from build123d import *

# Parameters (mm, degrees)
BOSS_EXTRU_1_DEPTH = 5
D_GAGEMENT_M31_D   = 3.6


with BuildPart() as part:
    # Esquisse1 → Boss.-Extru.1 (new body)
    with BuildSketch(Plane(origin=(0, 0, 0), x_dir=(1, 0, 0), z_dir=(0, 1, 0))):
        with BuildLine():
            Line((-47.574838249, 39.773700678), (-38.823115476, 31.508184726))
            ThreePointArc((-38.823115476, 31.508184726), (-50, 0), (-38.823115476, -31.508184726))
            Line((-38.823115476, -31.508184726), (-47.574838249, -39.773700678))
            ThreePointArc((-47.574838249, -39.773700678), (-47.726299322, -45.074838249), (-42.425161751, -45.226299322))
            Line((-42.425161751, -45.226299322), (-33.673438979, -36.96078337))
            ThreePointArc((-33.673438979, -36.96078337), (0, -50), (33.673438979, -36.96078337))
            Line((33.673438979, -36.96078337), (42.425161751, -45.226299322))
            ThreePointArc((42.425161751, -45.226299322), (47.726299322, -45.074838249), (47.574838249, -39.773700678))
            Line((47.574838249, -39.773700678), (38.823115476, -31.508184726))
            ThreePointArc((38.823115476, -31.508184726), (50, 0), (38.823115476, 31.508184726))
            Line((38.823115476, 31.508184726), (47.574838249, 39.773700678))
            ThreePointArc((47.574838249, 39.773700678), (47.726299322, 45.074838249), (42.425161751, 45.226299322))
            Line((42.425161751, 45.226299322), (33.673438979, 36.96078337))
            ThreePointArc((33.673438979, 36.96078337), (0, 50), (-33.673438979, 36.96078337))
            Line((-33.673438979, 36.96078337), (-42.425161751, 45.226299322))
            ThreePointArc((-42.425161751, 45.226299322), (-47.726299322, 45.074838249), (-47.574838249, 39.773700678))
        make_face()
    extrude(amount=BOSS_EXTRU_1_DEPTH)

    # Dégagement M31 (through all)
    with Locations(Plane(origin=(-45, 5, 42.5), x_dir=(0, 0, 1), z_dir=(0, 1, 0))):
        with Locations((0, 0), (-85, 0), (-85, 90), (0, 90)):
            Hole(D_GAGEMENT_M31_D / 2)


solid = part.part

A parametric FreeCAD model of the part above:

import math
import FreeCAD as App
import Part
import Sketcher
Q = App.Units.Quantity

doc = App.newDocument("Part")
body = doc.addObject("PartDesign::Body", "Body")

sketch1 = doc.addObject("Sketcher::SketchObject", "Sketch")
body.addObject(sketch1)
sketch1.AttachmentSupport = (doc.XZ_Plane, [""])
sketch1.MapMode = "FlatFace"
sketch1.addGeometry([
    Part.LineSegment(App.Vector(-47.6, -39.8, 0), App.Vector(-38.8, -31.5, 0)),
    Part.ArcOfCircle(Part.Circle(App.Vector(0, 0, 0), App.Vector(0, 0, 1), 50), math.radians(141), math.radians(219)),
    Part.LineSegment(App.Vector(-38.8, 31.5, 0), App.Vector(-47.6, 39.8, 0)),
    Part.ArcOfCircle(Part.Circle(App.Vector(-45, 42.5, 0), App.Vector(0, 0, 1), 3.8), math.radians(47), math.radians(227)),
    Part.LineSegment(App.Vector(-42.4, 45.2, 0), App.Vector(-33.7, 37, 0)),
    Part.ArcOfCircle(Part.Circle(App.Vector(0, 0, 0), App.Vector(0, 0, 1), 50), math.radians(48), math.radians(132)),
    Part.LineSegment(App.Vector(33.7, 37, 0), App.Vector(42.4, 45.2, 0)),
    Part.ArcOfCircle(Part.Circle(App.Vector(45, 42.5, 0), App.Vector(0, 0, 1), 3.8), math.radians(-47), math.radians(133)),
    Part.LineSegment(App.Vector(47.6, 39.8, 0), App.Vector(38.8, 31.5, 0)),
    Part.ArcOfCircle(Part.Circle(App.Vector(0, 0, 0), App.Vector(0, 0, 1), 50), math.radians(-39), math.radians(39)),
    Part.LineSegment(App.Vector(38.8, -31.5, 0), App.Vector(47.6, -39.8, 0)),
    Part.ArcOfCircle(Part.Circle(App.Vector(45, -42.5, 0), App.Vector(0, 0, 1), 3.8), math.radians(-133), math.radians(47)),
    Part.LineSegment(App.Vector(42.4, -45.2, 0), App.Vector(33.7, -37, 0)),
    Part.ArcOfCircle(Part.Circle(App.Vector(0, 0, 0), App.Vector(0, 0, 1), 50), math.radians(-132), math.radians(-48)),
    Part.LineSegment(App.Vector(-33.7, -37, 0), App.Vector(-42.4, -45.2, 0)),
    Part.ArcOfCircle(Part.Circle(App.Vector(-45, -42.5, 0), App.Vector(0, 0, 1), 3.8), math.radians(133), math.radians(313)),
], False)
sketch1.addConstraint([
    Sketcher.Constraint("Coincident", 0, 2, 1, 2),
    Sketcher.Constraint("Coincident", 1, 1, 2, 1),
    Sketcher.Constraint("Tangent", 2, 2, 3, 2),
    Sketcher.Constraint("Tangent", 3, 1, 4, 1),
    Sketcher.Constraint("Coincident", 4, 2, 5, 2),
    Sketcher.Constraint("Coincident", 5, 1, 6, 1),
    Sketcher.Constraint("Tangent", 6, 2, 7, 2),
    Sketcher.Constraint("Tangent", 7, 1, 8, 1),
    Sketcher.Constraint("Coincident", 8, 2, 9, 2),
    Sketcher.Constraint("Coincident", 9, 1, 10, 1),
    Sketcher.Constraint("Tangent", 10, 2, 11, 2),
    Sketcher.Constraint("Tangent", 11, 1, 12, 1),
    Sketcher.Constraint("Coincident", 12, 2, 13, 2),
    Sketcher.Constraint("Coincident", 13, 1, 14, 1),
    Sketcher.Constraint("Tangent", 14, 2, 15, 2),
    Sketcher.Constraint("Tangent", 15, 1, 0, 1),
    Sketcher.Constraint("Coincident", 1, 3, -1, 1),
    Sketcher.Constraint("Coincident", 5, 3, -1, 1),
    Sketcher.Constraint("Coincident", 9, 3, -1, 1),
    Sketcher.Constraint("Coincident", 13, 3, -1, 1),
    Sketcher.Constraint("Equal", 1, 5),
    Sketcher.Constraint("Equal", 3, 7),
    Sketcher.Constraint("Equal", 5, 9),
    Sketcher.Constraint("Equal", 7, 11),
    Sketcher.Constraint("Equal", 9, 13),
    Sketcher.Constraint("Equal", 11, 15),
    Sketcher.Constraint("Symmetric", 3, 3, 11, 3, -1, 1),
    Sketcher.Constraint("Symmetric", 7, 3, 15, 3, -1, 1),
    Sketcher.Constraint("Symmetric", 3, 3, 7, 3, -2),
    Sketcher.Constraint("Parallel", 2, 4),
    Sketcher.Constraint("Parallel", 0, 6),
    Sketcher.Constraint("Parallel", 6, 8),
    Sketcher.Constraint("Parallel", 4, 10),
    Sketcher.Constraint("Parallel", 10, 12),
    Sketcher.Constraint("Parallel", 8, 14),
    Sketcher.Constraint("Horizontal", 4, 2, 5, 1),
    Sketcher.Constraint("Equal", 2, 4),
    Sketcher.Constraint("Radius", 1, Q("50 mm")),
    Sketcher.Constraint("Radius", 3, Q("3.75 mm")),
    Sketcher.Constraint("DistanceX", 3, 3, -1, 1, Q("45 mm")),
    Sketcher.Constraint("DistanceY", 11, 3, 7, 3, Q("85 mm")),
])
pad1 = doc.addObject("PartDesign::Pad", "Pad")
body.addObject(pad1)
pad1.Profile = sketch1
pad1.Length = 5
pad1.Reversed = True

sketch2 = doc.addObject("Sketcher::SketchObject", "Sketch001")
body.addObject(sketch2)
sketch2.AttachmentSupport = (doc.XZ_Plane, [""])
sketch2.MapMode = "FlatFace"
sketch2.AttachmentOffset = App.Placement(App.Vector(0, 0, -5), App.Rotation())
sketch2.addGeometry([
    Part.Circle(App.Vector(-45, 42.5, 0), App.Vector(0, 0, 1), 1.8),
    Part.Circle(App.Vector(-45, -42.5, 0), App.Vector(0, 0, 1), 1.8),
    Part.Circle(App.Vector(45, -42.5, 0), App.Vector(0, 0, 1), 1.8),
    Part.Circle(App.Vector(45, 42.5, 0), App.Vector(0, 0, 1), 1.8),
], False)
sketch2.addConstraint([
    Sketcher.Constraint("Equal", 0, 1),
    Sketcher.Constraint("Equal", 1, 2),
    Sketcher.Constraint("Equal", 2, 3),
    Sketcher.Constraint("Symmetric", 0, 3, 2, 3, -1, 1),
    Sketcher.Constraint("Symmetric", 1, 3, 3, 3, -1, 1),
    Sketcher.Constraint("Symmetric", 1, 3, 2, 3, -2),
    Sketcher.Constraint("Diameter", 0, Q("3.6 mm")),
    Sketcher.Constraint("DistanceX", 0, 3, -1, 1, Q("45 mm")),
    Sketcher.Constraint("DistanceY", 1, 3, 0, 3, Q("85 mm")),
])
doc.recompute()
hole = doc.addObject("PartDesign::Hole", "Hole")
body.addObject(hole)
hole.Profile = sketch2
hole.ThreadType = "None"
hole.Diameter = 3.6
hole.DepthType = "ThroughAll"
hole.Reversed = True

doc.recompute()
